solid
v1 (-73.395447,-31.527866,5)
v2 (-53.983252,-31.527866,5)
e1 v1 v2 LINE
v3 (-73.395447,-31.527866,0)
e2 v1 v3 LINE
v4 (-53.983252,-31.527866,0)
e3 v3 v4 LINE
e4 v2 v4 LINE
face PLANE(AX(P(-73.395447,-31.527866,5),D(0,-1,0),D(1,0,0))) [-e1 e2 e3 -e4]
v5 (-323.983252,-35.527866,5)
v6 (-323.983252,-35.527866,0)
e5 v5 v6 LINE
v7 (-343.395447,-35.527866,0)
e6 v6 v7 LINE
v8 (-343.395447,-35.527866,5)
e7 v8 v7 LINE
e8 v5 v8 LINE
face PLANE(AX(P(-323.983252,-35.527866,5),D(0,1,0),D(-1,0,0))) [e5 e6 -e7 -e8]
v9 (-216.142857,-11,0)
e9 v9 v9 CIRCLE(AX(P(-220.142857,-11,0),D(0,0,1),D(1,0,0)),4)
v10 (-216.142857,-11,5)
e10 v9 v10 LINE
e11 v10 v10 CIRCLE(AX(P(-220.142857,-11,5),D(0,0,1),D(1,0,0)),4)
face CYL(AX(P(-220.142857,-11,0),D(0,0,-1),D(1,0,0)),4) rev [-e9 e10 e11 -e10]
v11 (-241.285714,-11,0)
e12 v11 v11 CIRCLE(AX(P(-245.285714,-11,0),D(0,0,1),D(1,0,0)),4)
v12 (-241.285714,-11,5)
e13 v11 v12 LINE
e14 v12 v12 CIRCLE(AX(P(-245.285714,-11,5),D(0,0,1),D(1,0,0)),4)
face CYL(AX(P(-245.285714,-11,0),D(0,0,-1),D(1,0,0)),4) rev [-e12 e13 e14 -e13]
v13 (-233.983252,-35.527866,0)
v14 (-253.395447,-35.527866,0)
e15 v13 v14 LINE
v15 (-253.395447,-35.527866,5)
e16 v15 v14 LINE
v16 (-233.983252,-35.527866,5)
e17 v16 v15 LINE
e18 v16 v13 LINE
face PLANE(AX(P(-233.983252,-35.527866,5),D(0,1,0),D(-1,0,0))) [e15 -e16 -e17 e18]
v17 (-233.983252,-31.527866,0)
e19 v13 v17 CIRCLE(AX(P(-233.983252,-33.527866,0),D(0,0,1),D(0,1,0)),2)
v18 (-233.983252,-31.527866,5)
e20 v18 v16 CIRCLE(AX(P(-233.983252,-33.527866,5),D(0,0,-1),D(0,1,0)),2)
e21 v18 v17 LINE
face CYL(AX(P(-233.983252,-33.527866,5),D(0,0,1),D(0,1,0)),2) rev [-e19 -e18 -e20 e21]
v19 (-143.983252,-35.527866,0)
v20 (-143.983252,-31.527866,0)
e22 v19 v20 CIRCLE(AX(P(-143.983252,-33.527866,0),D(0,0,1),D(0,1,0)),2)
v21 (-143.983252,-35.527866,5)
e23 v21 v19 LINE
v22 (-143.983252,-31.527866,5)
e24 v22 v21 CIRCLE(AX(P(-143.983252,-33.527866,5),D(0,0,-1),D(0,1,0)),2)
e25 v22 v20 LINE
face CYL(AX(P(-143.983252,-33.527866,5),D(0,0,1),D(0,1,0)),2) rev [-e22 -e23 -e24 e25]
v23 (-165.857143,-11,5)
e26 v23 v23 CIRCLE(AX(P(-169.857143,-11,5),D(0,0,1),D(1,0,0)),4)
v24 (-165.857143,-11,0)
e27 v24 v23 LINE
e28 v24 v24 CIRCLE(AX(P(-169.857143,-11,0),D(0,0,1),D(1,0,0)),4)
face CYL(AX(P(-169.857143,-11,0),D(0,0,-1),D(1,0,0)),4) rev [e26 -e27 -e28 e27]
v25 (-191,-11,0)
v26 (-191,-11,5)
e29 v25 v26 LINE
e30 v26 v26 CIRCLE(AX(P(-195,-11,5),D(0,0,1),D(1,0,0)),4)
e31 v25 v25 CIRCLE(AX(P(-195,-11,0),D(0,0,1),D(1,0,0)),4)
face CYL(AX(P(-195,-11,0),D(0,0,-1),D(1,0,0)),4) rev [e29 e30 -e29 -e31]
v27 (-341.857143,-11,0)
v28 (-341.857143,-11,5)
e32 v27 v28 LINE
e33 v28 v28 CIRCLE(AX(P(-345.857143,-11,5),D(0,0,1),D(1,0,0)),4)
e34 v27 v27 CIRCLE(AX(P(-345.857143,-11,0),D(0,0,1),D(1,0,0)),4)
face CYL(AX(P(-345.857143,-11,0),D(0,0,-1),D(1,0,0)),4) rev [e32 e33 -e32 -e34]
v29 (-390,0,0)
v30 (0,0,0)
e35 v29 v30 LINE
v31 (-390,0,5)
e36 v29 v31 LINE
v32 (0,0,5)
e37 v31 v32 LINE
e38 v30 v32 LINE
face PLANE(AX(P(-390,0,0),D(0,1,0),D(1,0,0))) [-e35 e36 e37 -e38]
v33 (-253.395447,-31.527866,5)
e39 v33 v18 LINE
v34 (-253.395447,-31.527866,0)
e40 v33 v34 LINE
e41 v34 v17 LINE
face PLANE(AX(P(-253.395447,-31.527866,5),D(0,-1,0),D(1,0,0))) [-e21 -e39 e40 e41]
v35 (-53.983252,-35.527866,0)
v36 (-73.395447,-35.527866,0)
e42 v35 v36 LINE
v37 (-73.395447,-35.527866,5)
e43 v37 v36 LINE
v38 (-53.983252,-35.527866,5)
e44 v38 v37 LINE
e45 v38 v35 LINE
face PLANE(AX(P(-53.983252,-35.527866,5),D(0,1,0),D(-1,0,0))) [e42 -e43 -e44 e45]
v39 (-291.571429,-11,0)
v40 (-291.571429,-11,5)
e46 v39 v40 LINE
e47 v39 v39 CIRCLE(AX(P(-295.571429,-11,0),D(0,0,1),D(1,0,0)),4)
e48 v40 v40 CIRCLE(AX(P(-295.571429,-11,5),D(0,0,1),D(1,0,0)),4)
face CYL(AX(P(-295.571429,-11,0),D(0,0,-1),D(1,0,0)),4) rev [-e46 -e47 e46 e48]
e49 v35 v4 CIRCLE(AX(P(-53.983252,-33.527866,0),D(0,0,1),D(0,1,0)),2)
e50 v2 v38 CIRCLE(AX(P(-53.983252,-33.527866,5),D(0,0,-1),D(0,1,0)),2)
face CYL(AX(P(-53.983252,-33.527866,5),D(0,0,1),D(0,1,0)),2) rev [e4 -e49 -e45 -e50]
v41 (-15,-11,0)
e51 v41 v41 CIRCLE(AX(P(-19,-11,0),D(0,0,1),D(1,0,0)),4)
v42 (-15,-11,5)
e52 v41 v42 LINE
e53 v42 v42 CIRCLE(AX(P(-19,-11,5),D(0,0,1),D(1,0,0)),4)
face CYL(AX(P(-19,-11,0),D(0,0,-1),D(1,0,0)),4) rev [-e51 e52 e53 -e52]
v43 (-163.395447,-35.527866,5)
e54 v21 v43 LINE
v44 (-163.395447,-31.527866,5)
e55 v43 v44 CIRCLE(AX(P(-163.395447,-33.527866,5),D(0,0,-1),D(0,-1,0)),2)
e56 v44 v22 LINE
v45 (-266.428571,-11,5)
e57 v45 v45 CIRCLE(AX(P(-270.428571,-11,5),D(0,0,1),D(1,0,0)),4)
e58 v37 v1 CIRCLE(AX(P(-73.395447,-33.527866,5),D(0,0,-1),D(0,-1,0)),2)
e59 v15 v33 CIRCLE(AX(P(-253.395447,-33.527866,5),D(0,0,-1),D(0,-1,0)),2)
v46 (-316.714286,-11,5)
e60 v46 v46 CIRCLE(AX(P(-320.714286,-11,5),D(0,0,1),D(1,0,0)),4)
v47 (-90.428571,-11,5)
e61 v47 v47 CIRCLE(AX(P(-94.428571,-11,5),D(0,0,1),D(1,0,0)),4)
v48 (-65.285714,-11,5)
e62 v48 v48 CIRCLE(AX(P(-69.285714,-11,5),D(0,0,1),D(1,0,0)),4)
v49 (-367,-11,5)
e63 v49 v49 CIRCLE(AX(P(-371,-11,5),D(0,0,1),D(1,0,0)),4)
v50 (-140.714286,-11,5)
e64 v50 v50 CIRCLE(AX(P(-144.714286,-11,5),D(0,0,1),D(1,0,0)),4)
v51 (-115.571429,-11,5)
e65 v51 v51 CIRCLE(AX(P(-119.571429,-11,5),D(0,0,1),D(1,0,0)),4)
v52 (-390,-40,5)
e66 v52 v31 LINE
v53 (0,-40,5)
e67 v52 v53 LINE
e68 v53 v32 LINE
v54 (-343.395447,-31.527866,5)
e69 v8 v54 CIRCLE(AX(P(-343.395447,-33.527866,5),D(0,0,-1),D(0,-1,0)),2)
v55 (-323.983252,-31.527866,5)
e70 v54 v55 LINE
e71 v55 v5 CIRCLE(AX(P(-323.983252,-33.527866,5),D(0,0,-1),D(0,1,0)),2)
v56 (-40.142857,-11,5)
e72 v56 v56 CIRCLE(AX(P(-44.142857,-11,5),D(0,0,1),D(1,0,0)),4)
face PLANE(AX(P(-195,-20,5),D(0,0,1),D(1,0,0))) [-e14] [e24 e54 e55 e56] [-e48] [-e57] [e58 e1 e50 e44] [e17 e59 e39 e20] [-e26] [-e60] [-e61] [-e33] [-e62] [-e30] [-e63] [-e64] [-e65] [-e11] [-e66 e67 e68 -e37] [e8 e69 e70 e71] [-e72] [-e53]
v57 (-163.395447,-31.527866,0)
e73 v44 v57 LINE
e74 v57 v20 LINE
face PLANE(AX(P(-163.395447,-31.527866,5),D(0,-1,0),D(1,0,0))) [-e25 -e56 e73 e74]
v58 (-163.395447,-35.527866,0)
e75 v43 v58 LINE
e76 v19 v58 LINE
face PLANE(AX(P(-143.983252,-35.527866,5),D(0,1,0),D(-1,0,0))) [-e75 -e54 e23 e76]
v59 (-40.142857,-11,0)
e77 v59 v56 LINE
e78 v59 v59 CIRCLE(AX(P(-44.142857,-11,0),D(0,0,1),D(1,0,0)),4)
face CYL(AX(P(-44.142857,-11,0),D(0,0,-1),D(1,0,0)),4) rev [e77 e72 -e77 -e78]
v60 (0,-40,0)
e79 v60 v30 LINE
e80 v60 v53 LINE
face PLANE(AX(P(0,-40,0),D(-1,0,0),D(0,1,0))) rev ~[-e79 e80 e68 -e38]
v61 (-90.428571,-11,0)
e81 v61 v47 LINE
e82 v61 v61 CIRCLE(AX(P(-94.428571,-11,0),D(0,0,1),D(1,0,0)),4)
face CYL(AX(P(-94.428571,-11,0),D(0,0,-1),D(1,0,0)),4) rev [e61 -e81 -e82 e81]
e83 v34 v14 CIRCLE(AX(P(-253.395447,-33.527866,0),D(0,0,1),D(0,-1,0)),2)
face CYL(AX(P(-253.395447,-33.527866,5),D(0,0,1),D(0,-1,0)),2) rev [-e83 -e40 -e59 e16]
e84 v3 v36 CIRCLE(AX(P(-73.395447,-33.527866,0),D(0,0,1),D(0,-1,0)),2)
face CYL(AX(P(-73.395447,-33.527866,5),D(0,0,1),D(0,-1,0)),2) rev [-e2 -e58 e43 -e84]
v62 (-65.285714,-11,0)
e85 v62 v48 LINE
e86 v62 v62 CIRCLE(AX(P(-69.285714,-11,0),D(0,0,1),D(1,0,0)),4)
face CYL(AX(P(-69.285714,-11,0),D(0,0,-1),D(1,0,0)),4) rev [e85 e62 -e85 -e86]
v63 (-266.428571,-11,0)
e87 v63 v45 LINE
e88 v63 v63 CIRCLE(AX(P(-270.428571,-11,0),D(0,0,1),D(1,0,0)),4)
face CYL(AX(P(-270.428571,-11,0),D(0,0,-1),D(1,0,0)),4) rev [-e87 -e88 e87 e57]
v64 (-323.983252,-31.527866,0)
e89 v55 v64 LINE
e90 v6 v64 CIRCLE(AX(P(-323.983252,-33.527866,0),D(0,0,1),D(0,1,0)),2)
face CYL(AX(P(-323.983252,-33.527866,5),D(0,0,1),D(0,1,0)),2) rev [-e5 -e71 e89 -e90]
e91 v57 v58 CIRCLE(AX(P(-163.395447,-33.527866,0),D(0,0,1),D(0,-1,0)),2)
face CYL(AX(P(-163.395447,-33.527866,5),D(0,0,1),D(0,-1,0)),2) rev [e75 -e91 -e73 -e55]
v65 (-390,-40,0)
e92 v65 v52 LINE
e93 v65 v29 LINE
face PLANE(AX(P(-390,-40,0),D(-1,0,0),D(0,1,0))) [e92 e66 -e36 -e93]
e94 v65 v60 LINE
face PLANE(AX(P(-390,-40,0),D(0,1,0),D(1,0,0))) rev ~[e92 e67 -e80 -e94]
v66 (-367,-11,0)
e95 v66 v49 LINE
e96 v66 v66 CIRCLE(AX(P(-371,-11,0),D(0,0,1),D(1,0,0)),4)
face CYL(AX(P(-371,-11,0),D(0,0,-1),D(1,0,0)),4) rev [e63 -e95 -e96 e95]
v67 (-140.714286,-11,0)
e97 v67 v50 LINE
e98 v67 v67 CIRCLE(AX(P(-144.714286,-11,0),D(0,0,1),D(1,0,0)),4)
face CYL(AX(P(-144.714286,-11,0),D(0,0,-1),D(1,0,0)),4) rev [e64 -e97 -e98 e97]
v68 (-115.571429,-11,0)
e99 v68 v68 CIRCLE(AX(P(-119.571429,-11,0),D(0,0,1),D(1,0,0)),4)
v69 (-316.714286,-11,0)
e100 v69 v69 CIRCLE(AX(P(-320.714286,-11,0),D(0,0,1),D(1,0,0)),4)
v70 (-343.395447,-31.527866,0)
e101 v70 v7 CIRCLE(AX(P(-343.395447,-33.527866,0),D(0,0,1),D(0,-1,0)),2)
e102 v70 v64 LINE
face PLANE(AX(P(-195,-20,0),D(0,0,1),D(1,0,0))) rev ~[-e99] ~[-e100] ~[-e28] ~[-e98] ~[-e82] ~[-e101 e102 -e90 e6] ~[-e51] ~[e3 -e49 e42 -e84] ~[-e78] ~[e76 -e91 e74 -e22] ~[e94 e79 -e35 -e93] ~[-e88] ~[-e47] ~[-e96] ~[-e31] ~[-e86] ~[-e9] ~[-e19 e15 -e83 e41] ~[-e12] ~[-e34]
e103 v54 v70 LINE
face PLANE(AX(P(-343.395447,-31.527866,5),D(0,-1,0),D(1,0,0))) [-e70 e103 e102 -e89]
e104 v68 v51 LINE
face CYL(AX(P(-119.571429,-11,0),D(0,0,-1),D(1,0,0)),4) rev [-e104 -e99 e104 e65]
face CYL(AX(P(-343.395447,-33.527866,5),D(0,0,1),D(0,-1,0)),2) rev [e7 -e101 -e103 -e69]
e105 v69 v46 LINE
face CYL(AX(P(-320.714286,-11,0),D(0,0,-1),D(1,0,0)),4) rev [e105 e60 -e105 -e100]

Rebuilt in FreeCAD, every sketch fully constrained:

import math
import FreeCAD as App
import Part
import Sketcher
from FreeCAD import Vector
Q = App.Units.Quantity


def add_polygon(sketch, points):
    """Adds a closed chain of lines whose ends are joined by coincident constraints."""
    first, n = sketch.GeometryCount, len(points)
    for a, b in zip(points, points[1:] + points[:1]):
        sketch.addGeometry(Part.LineSegment(App.Vector(*a, 0), App.Vector(*b, 0)), False)
    for i in range(n):
        sketch.addConstraint(Sketcher.Constraint("Coincident", first + i, 2, first + (i + 1) % n, 1))

doc = App.newDocument("Part")
body = doc.addObject("PartDesign::Body", "Body")

# Sketch on XY plane
sketch1 = doc.addObject("Sketcher::SketchObject", "Sketch")
body.addObject(sketch1)
sketch1.AttachmentSupport = (doc.XY_Plane, [""])
sketch1.MapMode = "FlatFace"
add_polygon(sketch1, [(-390, 0), (-390, -40), (0, -40), (0, 0)])  # lines 0-3
sketch1.addGeometry(Part.Circle(Vector(-371, -11, 0), Vector(0, 0, 1), 4), False)  # 4
sketch1.addGeometry(Part.Circle(Vector(-345.9, -11, 0), Vector(0, 0, 1), 4), False)  # 5
sketch1.addGeometry(Part.Circle(Vector(-320.7, -11, 0), Vector(0, 0, 1), 4), False)  # 6
sketch1.addGeometry(Part.Circle(Vector(-295.6, -11, 0), Vector(0, 0, 1), 4), False)  # 7
sketch1.addGeometry(Part.Circle(Vector(-270.4, -11, 0), Vector(0, 0, 1), 4), False)  # 8
sketch1.addGeometry(Part.Circle(Vector(-245.3, -11, 0), Vector(0, 0, 1), 4), False)  # 9
sketch1.addGeometry(Part.Circle(Vector(-220.1, -11, 0), Vector(0, 0, 1), 4), False)  # 10
sketch1.addGeometry(Part.Circle(Vector(-195, -11, 0), Vector(0, 0, 1), 4), False)  # 11
sketch1.addGeometry(Part.Circle(Vector(-169.9, -11, 0), Vector(0, 0, 1), 4), False)  # 12
sketch1.addGeometry(Part.Circle(Vector(-144.7, -11, 0), Vector(0, 0, 1), 4), False)  # 13
sketch1.addGeometry(Part.Circle(Vector(-119.6, -11, 0), Vector(0, 0, 1), 4), False)  # 14
sketch1.addGeometry(Part.Circle(Vector(-94.4, -11, 0), Vector(0, 0, 1), 4), False)  # 15
sketch1.addGeometry(Part.Circle(Vector(-69.3, -11, 0), Vector(0, 0, 1), 4), False)  # 16
sketch1.addGeometry(Part.Circle(Vector(-44.1, -11, 0), Vector(0, 0, 1), 4), False)  # 17
sketch1.addGeometry(Part.Circle(Vector(-19, -11, 0), Vector(0, 0, 1), 4), False)  # 18
sketch1.addConstraint([
    Sketcher.Constraint("Vertical", 0),
    Sketcher.Constraint("Horizontal", 1),
    Sketcher.Constraint("Vertical", 2),
    Sketcher.Constraint("Horizontal", 3),
    Sketcher.Constraint("Coincident", 2, 2, -1, 1),
    Sketcher.Constraint("Equal", 4, 5),
    Sketcher.Constraint("Equal", 5, 6),
    Sketcher.Constraint("Equal", 6, 7),
    Sketcher.Constraint("Equal", 7, 8),
    Sketcher.Constraint("Equal", 8, 9),
    Sketcher.Constraint("Equal", 9, 10),
    Sketcher.Constraint("Equal", 10, 11),
    Sketcher.Constraint("Equal", 11, 12),
    Sketcher.Constraint("Equal", 12, 13),
    Sketcher.Constraint("Equal", 13, 14),
    Sketcher.Constraint("Equal", 14, 15),
    Sketcher.Constraint("Equal", 15, 16),
    Sketcher.Constraint("Equal", 16, 17),
    Sketcher.Constraint("Equal", 17, 18),
    Sketcher.Constraint("Horizontal", 4, 3, 5, 3),
    Sketcher.Constraint("Horizontal", 5, 3, 6, 3),
    Sketcher.Constraint("Horizontal", 6, 3, 7, 3),
    Sketcher.Constraint("Horizontal", 7, 3, 8, 3),
    Sketcher.Constraint("Horizontal", 8, 3, 9, 3),
    Sketcher.Constraint("Horizontal", 9, 3, 10, 3),
    Sketcher.Constraint("Horizontal", 10, 3, 11, 3),
    Sketcher.Constraint("Horizontal", 11, 3, 12, 3),
    Sketcher.Constraint("Horizontal", 12, 3, 13, 3),
    Sketcher.Constraint("Horizontal", 13, 3, 14, 3),
    Sketcher.Constraint("Horizontal", 14, 3, 15, 3),
    Sketcher.Constraint("Horizontal", 15, 3, 16, 3),
    Sketcher.Constraint("Horizontal", 16, 3, 17, 3),
    Sketcher.Constraint("Horizontal", 17, 3, 18, 3),
    Sketcher.Constraint("Diameter", 4, Q("8 mm")),
    Sketcher.Constraint("DistanceX", 1, 1, 1, 2, Q("390 mm")),
    Sketcher.Constraint("DistanceY", 0, 2, 0, 1, Q("40 mm")),
    Sketcher.Constraint("DistanceX", 4, 3, -1, 1, Q("371 mm")),
    Sketcher.Constraint("DistanceY", 4, 3, -1, 1, Q("11 mm")),
    Sketcher.Constraint("DistanceX", 11, 3, -1, 1, Q("195 mm")),
    Sketcher.Constraint("DistanceX", 18, 3, -1, 1, Q("19 mm")),
    Sketcher.Constraint("DistanceX", 7, 3, -1, 1, Q("295.571429 mm")),
    Sketcher.Constraint("DistanceX", 8, 3, -1, 1, Q("270.428571 mm")),
    Sketcher.Constraint("DistanceX", 14, 3, -1, 1, Q("119.571429 mm")),
    Sketcher.Constraint("DistanceX", 15, 3, -1, 1, Q("94.428571 mm")),
    Sketcher.Constraint("DistanceX", 5, 3, 8, 3, Q("75.428571 mm")),
    Sketcher.Constraint("DistanceX", 6, 3, 9, 3, Q("75.428571 mm")),
    Sketcher.Constraint("DistanceX", 5, 3, 9, 3, Q("100.571429 mm")),
    Sketcher.Constraint("DistanceX", 7, 3, 10, 3, Q("75.428571 mm")),
    Sketcher.Constraint("DistanceX", 9, 3, 12, 3, Q("75.428571 mm")),
    Sketcher.Constraint("DistanceX", 10, 3, 13, 3, Q("75.428571 mm")),
    Sketcher.Constraint("DistanceX", 13, 3, 16, 3, Q("75.428571 mm")),
    Sketcher.Constraint("DistanceX", 14, 3, 17, 3, Q("75.428571 mm")),
])
pad1 = doc.addObject("PartDesign::Pad", "Pad")
body.addObject(pad1)
pad1.Profile = sketch1
pad1.Length = 5

# Sketch on XY plane
sketch2 = doc.addObject("Sketcher::SketchObject", "Sketch001")
body.addObject(sketch2)
sketch2.AttachmentSupport = (doc.XY_Plane, [""])
sketch2.MapMode = "FlatFace"
sketch2.AttachmentOffset = App.Placement(Vector(0, 0, 5), App.Rotation())
sketch2.addGeometry([
    Part.LineSegment(Vector(-324, -31.5, 0), Vector(-343.4, -31.5, 0)),  # 0
    Part.ArcOfCircle(Part.Circle(Vector(-343.4, -33.5, 0), Vector(0, 0, 1), 2), math.radians(90), math.radians(270)),  # 1
    Part.LineSegment(Vector(-343.4, -35.5, 0), Vector(-324, -35.5, 0)),  # 2
    Part.ArcOfCircle(Part.Circle(Vector(-324, -33.5, 0), Vector(0, 0, 1), 2), math.radians(-90), math.radians(90)),  # 3
    Part.LineSegment(Vector(-234, -31.5, 0), Vector(-253.4, -31.5, 0)),  # 4
    Part.ArcOfCircle(Part.Circle(Vector(-253.4, -33.5, 0), Vector(0, 0, 1), 2), math.radians(90), math.radians(270)),  # 5
    Part.LineSegment(Vector(-253.4, -35.5, 0), Vector(-234, -35.5, 0)),  # 6
    Part.ArcOfCircle(Part.Circle(Vector(-234, -33.5, 0), Vector(0, 0, 1), 2), math.radians(-90), math.radians(90)),  # 7
    Part.LineSegment(Vector(-144, -31.5, 0), Vector(-163.4, -31.5, 0)),  # 8
    Part.ArcOfCircle(Part.Circle(Vector(-163.4, -33.5, 0), Vector(0, 0, 1), 2), math.radians(90), math.radians(270)),  # 9
    Part.LineSegment(Vector(-163.4, -35.5, 0), Vector(-144, -35.5, 0)),  # 10
    Part.ArcOfCircle(Part.Circle(Vector(-144, -33.5, 0), Vector(0, 0, 1), 2), math.radians(-90), math.radians(90)),  # 11
    Part.LineSegment(Vector(-54, -31.5, 0), Vector(-73.4, -31.5, 0)),  # 12
    Part.ArcOfCircle(Part.Circle(Vector(-73.4, -33.5, 0), Vector(0, 0, 1), 2), math.radians(90), math.radians(270)),  # 13
    Part.LineSegment(Vector(-73.4, -35.5, 0), Vector(-54, -35.5, 0)),  # 14
    Part.ArcOfCircle(Part.Circle(Vector(-54, -33.5, 0), Vector(0, 0, 1), 2), math.radians(-90), math.radians(90)),  # 15
], False)
sketch2.addConstraint([
    Sketcher.Constraint("Tangent", 0, 2, 1, 1),
    Sketcher.Constraint("Tangent", 1, 2, 2, 1),
    Sketcher.Constraint("Tangent", 2, 2, 3, 1),
    Sketcher.Constraint("Tangent", 3, 2, 0, 1),
    Sketcher.Constraint("Tangent", 4, 2, 5, 1),
    Sketcher.Constraint("Tangent", 5, 2, 6, 1),
    Sketcher.Constraint("Tangent", 6, 2, 7, 1),
    Sketcher.Constraint("Tangent", 7, 2, 4, 1),
    Sketcher.Constraint("Tangent", 8, 2, 9, 1),
    Sketcher.Constraint("Tangent", 9, 2, 10, 1),
    Sketcher.Constraint("Tangent", 10, 2, 11, 1),
    Sketcher.Constraint("Tangent", 11, 2, 8, 1),
    Sketcher.Constraint("Tangent", 12, 2, 13, 1),
    Sketcher.Constraint("Tangent", 13, 2, 14, 1),
    Sketcher.Constraint("Tangent", 14, 2, 15, 1),
    Sketcher.Constraint("Tangent", 15, 2, 12, 1),
    Sketcher.Constraint("Horizontal", 0),
    Sketcher.Constraint("Horizontal", 2),
    Sketcher.Constraint("Horizontal", 4),
    Sketcher.Constraint("Horizontal", 6),
    Sketcher.Constraint("Horizontal", 8),
    Sketcher.Constraint("Horizontal", 10),
    Sketcher.Constraint("Horizontal", 12),
    Sketcher.Constraint("Horizontal", 14),
    Sketcher.Constraint("Equal", 3, 5),
    Sketcher.Constraint("Equal", 7, 9),
    Sketcher.Constraint("Equal", 11, 13),
    Sketcher.Constraint("Horizontal", 3, 3, 5, 3),
    Sketcher.Constraint("Horizontal", 7, 3, 9, 3),
    Sketcher.Constraint("Horizontal", 11, 3, 13, 3),
    Sketcher.Constraint("Equal", 2, 4),
    Sketcher.Constraint("Equal", 6, 8),
    Sketcher.Constraint("Equal", 10, 12),
    Sketcher.Constraint("Radius", 1, Q("2 mm")),
    Sketcher.Constraint("DistanceX", 1, 3, 5, 3, Q("90 mm")),
    Sketcher.Constraint("DistanceX", 5, 3, 9, 3, Q("90 mm")),
    Sketcher.Constraint("DistanceX", 9, 3, 13, 3, Q("90 mm")),
    Sketcher.Constraint("DistanceX", 0, 2, 0, 1, Q("19.412195 mm")),
    Sketcher.Constraint("DistanceX", 1, 3, -1, 1, Q("343.395447 mm")),
    Sketcher.Constraint("DistanceY", 1, 3, -1, 1, Q("33.527866 mm")),
])
pocket1 = doc.addObject("PartDesign::Pocket", "Pocket")
body.addObject(pocket1)
pocket1.Profile = sketch2
pocket1.Length = 90

doc.recompute()
